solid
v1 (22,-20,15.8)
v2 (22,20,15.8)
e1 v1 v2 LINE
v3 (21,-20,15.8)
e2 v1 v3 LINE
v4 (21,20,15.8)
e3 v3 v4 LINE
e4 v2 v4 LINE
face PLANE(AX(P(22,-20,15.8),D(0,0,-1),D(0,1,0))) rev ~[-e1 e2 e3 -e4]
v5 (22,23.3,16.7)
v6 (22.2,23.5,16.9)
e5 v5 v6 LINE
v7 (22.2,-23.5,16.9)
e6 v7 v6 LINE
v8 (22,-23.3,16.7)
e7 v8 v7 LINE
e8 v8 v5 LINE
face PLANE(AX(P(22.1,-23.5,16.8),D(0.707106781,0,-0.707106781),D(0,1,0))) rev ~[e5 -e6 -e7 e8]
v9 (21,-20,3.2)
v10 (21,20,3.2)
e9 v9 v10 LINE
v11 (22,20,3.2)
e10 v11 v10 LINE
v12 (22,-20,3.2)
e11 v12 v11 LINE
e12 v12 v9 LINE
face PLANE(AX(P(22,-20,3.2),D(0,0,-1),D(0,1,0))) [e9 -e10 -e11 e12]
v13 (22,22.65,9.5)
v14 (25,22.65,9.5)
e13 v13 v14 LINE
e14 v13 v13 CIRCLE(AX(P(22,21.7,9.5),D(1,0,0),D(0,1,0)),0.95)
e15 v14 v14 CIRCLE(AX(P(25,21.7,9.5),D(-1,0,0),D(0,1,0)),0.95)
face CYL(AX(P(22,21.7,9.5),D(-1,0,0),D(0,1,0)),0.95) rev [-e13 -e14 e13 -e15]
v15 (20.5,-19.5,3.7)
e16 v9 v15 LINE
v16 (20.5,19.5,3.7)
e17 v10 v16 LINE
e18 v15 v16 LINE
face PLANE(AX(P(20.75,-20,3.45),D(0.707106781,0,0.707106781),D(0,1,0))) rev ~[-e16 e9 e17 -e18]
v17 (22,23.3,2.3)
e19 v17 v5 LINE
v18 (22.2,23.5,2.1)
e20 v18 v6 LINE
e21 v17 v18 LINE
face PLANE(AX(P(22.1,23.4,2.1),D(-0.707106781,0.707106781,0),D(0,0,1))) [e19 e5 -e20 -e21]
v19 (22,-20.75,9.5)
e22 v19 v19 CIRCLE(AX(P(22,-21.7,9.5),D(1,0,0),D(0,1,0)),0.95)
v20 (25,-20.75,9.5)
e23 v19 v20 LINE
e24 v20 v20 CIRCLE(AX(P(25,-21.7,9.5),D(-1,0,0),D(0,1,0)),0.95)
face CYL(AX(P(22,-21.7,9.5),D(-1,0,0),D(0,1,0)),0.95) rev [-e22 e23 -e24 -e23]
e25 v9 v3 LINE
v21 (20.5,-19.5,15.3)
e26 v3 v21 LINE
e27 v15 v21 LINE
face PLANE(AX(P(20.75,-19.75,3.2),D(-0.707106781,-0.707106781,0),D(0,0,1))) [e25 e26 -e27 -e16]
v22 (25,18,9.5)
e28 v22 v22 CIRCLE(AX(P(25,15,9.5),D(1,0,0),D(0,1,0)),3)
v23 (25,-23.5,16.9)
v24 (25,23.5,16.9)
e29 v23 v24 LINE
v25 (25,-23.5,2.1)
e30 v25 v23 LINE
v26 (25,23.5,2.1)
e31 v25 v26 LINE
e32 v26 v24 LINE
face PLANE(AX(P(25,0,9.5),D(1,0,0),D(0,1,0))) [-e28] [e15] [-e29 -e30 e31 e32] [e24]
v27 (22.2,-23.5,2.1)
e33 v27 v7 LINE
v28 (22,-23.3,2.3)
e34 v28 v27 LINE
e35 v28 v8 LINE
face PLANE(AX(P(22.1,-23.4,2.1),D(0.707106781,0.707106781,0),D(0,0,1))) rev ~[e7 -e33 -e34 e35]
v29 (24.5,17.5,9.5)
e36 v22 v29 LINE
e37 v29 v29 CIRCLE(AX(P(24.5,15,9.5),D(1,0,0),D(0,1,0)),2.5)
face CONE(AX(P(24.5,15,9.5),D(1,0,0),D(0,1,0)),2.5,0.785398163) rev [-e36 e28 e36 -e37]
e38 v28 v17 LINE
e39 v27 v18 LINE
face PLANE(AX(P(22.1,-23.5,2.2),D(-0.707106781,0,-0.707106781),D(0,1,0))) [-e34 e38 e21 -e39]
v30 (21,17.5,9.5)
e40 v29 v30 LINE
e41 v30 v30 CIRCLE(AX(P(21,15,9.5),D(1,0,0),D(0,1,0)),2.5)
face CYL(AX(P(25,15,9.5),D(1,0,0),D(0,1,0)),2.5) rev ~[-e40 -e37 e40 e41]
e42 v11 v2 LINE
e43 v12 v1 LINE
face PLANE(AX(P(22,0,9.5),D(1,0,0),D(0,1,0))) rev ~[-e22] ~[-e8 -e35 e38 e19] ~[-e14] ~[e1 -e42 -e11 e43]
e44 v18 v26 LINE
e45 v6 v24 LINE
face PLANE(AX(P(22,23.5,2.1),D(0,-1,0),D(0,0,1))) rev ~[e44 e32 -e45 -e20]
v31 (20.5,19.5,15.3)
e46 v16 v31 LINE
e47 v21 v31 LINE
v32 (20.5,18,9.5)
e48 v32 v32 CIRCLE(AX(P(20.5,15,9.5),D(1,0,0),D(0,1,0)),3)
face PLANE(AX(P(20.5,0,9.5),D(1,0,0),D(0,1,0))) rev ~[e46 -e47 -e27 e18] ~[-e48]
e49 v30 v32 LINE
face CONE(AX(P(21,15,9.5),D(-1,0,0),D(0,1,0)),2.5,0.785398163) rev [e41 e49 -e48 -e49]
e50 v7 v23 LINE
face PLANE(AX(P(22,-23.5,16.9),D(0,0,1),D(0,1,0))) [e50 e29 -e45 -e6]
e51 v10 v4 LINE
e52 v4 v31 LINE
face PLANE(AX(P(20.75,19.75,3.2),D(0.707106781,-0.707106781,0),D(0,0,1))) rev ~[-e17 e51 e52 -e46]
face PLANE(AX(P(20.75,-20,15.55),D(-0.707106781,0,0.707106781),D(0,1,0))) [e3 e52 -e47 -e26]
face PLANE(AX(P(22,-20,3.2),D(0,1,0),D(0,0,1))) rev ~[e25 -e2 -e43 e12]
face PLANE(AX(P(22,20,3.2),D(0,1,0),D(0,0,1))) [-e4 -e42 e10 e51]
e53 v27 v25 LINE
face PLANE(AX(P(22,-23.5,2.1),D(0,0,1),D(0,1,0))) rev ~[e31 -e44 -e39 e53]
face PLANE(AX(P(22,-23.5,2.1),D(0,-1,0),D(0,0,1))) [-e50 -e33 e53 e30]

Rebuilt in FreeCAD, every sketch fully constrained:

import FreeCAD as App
import Part
import Sketcher
Q = App.Units.Quantity


def edges_at(feature, points):
    """Names of the edges that pass closest to the given points."""
    edges = feature.Shape.Edges
    near = lambda p: min(range(len(edges)), key=lambda i: edges[i].distToShape(Part.Vertex(*p))[0])
    return sorted({f"Edge{near(p) + 1}" for p in points})


def add_polygon(sketch, points):
    """Adds a closed chain of lines whose ends are joined by coincident constraints."""
    first, n = sketch.GeometryCount, len(points)
    for a, b in zip(points, points[1:] + points[:1]):
        sketch.addGeometry(Part.LineSegment(App.Vector(*a, 0), App.Vector(*b, 0)), False)
    for i in range(n):
        sketch.addConstraint(Sketcher.Constraint("Coincident", first + i, 2, first + (i + 1) % n, 1))

doc = App.newDocument("Part")
body = doc.addObject("PartDesign::Body", "Body")

# Sketch on YZ plane
sketch1 = body.newObject("Sketcher::SketchObject", "Sketch")
sketch1.AttachmentSupport = (doc.getObject("YZ_Plane"), [""])
sketch1.MapMode = "FlatFace"
add_polygon(sketch1, [(-24, 12), (-24, -3), (24, -3), (24, 12)])  # lines 0-3
sketch1.addConstraint(Sketcher.Constraint("Vertical", 0))
sketch1.addConstraint(Sketcher.Constraint("Horizontal", 1))
sketch1.addConstraint(Sketcher.Constraint("Vertical", 2))
sketch1.addConstraint(Sketcher.Constraint("Horizontal", 3))
sketch1.addConstraint(Sketcher.Constraint("DistanceX", 1, 1, 1, 2, Q("47 mm")))
sketch1.addConstraint(Sketcher.Constraint("DistanceY", 0, 2, 0, 1, Q("14.8 mm")))
sketch1.addConstraint(Sketcher.Constraint("DistanceX", 0, 2, -1, 1, Q("23.5 mm")))
sketch1.addConstraint(Sketcher.Constraint("DistanceY", 0, 2, -1, 1, Q("2.9 mm")))
pad1 = body.newObject("PartDesign::Pad", "Pad")
pad1.Profile = sketch1
pad1.Length = 3

# Sketch on YZ plane
sketch2 = body.newObject("Sketcher::SketchObject", "Sketch001")
sketch2.AttachmentSupport = (doc.getObject("YZ_Plane"), [""])
sketch2.MapMode = "FlatFace"
sketch2.addGeometry(Part.Circle(App.Vector(-21.7, 4.5, 0), App.Vector(0, 0, 1), 0.9), False)
sketch2.addGeometry(Part.Circle(App.Vector(21.7, 4.5, 0), App.Vector(0, 0, 1), 0.9), False)
sketch2.addConstraint(Sketcher.Constraint("Equal", 0, 1))
sketch2.addConstraint(Sketcher.Constraint("Symmetric", 0, 3, 1, 3, -2))
sketch2.addConstraint(Sketcher.Constraint("Diameter", 0, Q("1.9 mm")))
sketch2.addConstraint(Sketcher.Constraint("DistanceX", 0, 3, -1, 1, Q("21.7 mm")))
sketch2.addConstraint(Sketcher.Constraint("DistanceY", -1, 1, 0, 3, Q("4.5 mm")))
pocket1 = body.newObject("PartDesign::Pocket", "Pocket")
pocket1.Profile = sketch2
pocket1.Length = 5
pocket1.Reversed = True

# Sketch on YZ plane
sketch3 = body.newObject("Sketcher::SketchObject", "Sketch002")
sketch3.AttachmentSupport = (doc.getObject("YZ_Plane"), [""])
sketch3.MapMode = "FlatFace"
sketch3.AttachmentOffset = App.Placement(App.Vector(0, 0, 3), App.Rotation())
sketch3.addGeometry(Part.Circle(App.Vector(-21.7, 4.5, 0), App.Vector(0, 0, 1), 0.9), False)
sketch3.addGeometry(Part.Circle(App.Vector(21.7, 4.5, 0), App.Vector(0, 0, 1), 0.9), False)
sketch3.addConstraint(Sketcher.Constraint("Equal", 0, 1))
sketch3.addConstraint(Sketcher.Constraint("Symmetric", 0, 3, 1, 3, -2))
sketch3.addConstraint(Sketcher.Constraint("Diameter", 0, Q("1.9 mm")))
sketch3.addConstraint(Sketcher.Constraint("DistanceX", 0, 3, -1, 1, Q("21.7 mm")))
sketch3.addConstraint(Sketcher.Constraint("DistanceY", -1, 1, 0, 3, Q("4.5 mm")))
pocket2 = body.newObject("PartDesign::Pocket", "Pocket001")
pocket2.Profile = sketch3
pocket2.Length = 2

# Sketch on YZ plane
sketch4 = body.newObject("Sketcher::SketchObject", "Sketch003")
sketch4.AttachmentSupport = (doc.getObject("YZ_Plane"), [""])
sketch4.MapMode = "FlatFace"
add_polygon(sketch4, [(-20, 11), (-20, -2), (20, -2), (20, 11)])  # lines 0-3
sketch4.addConstraint(Sketcher.Constraint("Vertical", 0))
sketch4.addConstraint(Sketcher.Constraint("Horizontal", 1))
sketch4.addConstraint(Sketcher.Constraint("Vertical", 2))
sketch4.addConstraint(Sketcher.Constraint("Horizontal", 3))
sketch4.addConstraint(Sketcher.Constraint("DistanceX", 1, 1, 1, 2, Q("40 mm")))
sketch4.addConstraint(Sketcher.Constraint("DistanceY", 0, 2, 0, 1, Q("12.6 mm")))
sketch4.addConstraint(Sketcher.Constraint("DistanceX", 0, 2, -1, 1, Q("20 mm")))
sketch4.addConstraint(Sketcher.Constraint("DistanceY", 0, 2, -1, 1, Q("1.8 mm")))
pad2 = body.newObject("PartDesign::Pad", "Pad001")
pad2.Profile = sketch4
pad2.Length = 1.5
pad2.Reversed = True

# Sketch on YZ plane
sketch5 = body.newObject("Sketcher::SketchObject", "Sketch004")
sketch5.AttachmentSupport = (doc.getObject("YZ_Plane"), [""])
sketch5.MapMode = "FlatFace"
sketch5.AttachmentOffset = App.Placement(App.Vector(0, 0, 3), App.Rotation())
sketch5.addGeometry(Part.Circle(App.Vector(15, 4.5, 0), App.Vector(0, 0, 1), 2.5), False)
sketch5.addConstraint(Sketcher.Constraint("Diameter", 0, Q("5 mm")))
sketch5.addConstraint(Sketcher.Constraint("DistanceX", -1, 1, 0, 3, Q("15 mm")))
sketch5.addConstraint(Sketcher.Constraint("DistanceY", -1, 1, 0, 3, Q("4.5 mm")))
pocket3 = body.newObject("PartDesign::Pocket", "Pocket002")
pocket3.Profile = sketch5
pocket3.Length = 10
doc.recompute()

chamfer = body.newObject("PartDesign::Chamfer", "Chamfer")
chamfer.Base = (pocket3, edges_at(pocket3, [(-1.5, 12.5, 4.5), (3, 12.5, 4.5)]))
chamfer.Size = 0.5
doc.recompute()

chamfer2 = body.newObject("PartDesign::Chamfer", "Chamfer001")
chamfer2.Base = (chamfer, edges_at(chamfer, [
    (-1.5, 20, 4.5),
    (-1.5, 0, -1.8),
    (-1.5, -20, 4.5),
    (-1.5, 0, 10.8),
]))
chamfer2.Size = 0.5
doc.recompute()

chamfer3 = body.newObject("PartDesign::Chamfer", "Chamfer002")
chamfer3.Base = (chamfer2, edges_at(chamfer2, [
    (0, 23.5, 4.5),
    (0, 0, -2.9),
    (0, 0, 11.9),
    (0, -23.5, 4.5),
]))
chamfer3.Size = 0.2
body2 = doc.addObject("PartDesign::Body", "Body001")
doc.recompute()

body.Placement = App.Placement(App.Vector(22, 0, 5), App.Rotation(App.Vector(0, 0, 1), 0))
boolean = body2.newObject("PartDesign::Boolean", "Boolean")
boolean.Type = "Fuse"
boolean.addObjects([body])

doc.recompute()
